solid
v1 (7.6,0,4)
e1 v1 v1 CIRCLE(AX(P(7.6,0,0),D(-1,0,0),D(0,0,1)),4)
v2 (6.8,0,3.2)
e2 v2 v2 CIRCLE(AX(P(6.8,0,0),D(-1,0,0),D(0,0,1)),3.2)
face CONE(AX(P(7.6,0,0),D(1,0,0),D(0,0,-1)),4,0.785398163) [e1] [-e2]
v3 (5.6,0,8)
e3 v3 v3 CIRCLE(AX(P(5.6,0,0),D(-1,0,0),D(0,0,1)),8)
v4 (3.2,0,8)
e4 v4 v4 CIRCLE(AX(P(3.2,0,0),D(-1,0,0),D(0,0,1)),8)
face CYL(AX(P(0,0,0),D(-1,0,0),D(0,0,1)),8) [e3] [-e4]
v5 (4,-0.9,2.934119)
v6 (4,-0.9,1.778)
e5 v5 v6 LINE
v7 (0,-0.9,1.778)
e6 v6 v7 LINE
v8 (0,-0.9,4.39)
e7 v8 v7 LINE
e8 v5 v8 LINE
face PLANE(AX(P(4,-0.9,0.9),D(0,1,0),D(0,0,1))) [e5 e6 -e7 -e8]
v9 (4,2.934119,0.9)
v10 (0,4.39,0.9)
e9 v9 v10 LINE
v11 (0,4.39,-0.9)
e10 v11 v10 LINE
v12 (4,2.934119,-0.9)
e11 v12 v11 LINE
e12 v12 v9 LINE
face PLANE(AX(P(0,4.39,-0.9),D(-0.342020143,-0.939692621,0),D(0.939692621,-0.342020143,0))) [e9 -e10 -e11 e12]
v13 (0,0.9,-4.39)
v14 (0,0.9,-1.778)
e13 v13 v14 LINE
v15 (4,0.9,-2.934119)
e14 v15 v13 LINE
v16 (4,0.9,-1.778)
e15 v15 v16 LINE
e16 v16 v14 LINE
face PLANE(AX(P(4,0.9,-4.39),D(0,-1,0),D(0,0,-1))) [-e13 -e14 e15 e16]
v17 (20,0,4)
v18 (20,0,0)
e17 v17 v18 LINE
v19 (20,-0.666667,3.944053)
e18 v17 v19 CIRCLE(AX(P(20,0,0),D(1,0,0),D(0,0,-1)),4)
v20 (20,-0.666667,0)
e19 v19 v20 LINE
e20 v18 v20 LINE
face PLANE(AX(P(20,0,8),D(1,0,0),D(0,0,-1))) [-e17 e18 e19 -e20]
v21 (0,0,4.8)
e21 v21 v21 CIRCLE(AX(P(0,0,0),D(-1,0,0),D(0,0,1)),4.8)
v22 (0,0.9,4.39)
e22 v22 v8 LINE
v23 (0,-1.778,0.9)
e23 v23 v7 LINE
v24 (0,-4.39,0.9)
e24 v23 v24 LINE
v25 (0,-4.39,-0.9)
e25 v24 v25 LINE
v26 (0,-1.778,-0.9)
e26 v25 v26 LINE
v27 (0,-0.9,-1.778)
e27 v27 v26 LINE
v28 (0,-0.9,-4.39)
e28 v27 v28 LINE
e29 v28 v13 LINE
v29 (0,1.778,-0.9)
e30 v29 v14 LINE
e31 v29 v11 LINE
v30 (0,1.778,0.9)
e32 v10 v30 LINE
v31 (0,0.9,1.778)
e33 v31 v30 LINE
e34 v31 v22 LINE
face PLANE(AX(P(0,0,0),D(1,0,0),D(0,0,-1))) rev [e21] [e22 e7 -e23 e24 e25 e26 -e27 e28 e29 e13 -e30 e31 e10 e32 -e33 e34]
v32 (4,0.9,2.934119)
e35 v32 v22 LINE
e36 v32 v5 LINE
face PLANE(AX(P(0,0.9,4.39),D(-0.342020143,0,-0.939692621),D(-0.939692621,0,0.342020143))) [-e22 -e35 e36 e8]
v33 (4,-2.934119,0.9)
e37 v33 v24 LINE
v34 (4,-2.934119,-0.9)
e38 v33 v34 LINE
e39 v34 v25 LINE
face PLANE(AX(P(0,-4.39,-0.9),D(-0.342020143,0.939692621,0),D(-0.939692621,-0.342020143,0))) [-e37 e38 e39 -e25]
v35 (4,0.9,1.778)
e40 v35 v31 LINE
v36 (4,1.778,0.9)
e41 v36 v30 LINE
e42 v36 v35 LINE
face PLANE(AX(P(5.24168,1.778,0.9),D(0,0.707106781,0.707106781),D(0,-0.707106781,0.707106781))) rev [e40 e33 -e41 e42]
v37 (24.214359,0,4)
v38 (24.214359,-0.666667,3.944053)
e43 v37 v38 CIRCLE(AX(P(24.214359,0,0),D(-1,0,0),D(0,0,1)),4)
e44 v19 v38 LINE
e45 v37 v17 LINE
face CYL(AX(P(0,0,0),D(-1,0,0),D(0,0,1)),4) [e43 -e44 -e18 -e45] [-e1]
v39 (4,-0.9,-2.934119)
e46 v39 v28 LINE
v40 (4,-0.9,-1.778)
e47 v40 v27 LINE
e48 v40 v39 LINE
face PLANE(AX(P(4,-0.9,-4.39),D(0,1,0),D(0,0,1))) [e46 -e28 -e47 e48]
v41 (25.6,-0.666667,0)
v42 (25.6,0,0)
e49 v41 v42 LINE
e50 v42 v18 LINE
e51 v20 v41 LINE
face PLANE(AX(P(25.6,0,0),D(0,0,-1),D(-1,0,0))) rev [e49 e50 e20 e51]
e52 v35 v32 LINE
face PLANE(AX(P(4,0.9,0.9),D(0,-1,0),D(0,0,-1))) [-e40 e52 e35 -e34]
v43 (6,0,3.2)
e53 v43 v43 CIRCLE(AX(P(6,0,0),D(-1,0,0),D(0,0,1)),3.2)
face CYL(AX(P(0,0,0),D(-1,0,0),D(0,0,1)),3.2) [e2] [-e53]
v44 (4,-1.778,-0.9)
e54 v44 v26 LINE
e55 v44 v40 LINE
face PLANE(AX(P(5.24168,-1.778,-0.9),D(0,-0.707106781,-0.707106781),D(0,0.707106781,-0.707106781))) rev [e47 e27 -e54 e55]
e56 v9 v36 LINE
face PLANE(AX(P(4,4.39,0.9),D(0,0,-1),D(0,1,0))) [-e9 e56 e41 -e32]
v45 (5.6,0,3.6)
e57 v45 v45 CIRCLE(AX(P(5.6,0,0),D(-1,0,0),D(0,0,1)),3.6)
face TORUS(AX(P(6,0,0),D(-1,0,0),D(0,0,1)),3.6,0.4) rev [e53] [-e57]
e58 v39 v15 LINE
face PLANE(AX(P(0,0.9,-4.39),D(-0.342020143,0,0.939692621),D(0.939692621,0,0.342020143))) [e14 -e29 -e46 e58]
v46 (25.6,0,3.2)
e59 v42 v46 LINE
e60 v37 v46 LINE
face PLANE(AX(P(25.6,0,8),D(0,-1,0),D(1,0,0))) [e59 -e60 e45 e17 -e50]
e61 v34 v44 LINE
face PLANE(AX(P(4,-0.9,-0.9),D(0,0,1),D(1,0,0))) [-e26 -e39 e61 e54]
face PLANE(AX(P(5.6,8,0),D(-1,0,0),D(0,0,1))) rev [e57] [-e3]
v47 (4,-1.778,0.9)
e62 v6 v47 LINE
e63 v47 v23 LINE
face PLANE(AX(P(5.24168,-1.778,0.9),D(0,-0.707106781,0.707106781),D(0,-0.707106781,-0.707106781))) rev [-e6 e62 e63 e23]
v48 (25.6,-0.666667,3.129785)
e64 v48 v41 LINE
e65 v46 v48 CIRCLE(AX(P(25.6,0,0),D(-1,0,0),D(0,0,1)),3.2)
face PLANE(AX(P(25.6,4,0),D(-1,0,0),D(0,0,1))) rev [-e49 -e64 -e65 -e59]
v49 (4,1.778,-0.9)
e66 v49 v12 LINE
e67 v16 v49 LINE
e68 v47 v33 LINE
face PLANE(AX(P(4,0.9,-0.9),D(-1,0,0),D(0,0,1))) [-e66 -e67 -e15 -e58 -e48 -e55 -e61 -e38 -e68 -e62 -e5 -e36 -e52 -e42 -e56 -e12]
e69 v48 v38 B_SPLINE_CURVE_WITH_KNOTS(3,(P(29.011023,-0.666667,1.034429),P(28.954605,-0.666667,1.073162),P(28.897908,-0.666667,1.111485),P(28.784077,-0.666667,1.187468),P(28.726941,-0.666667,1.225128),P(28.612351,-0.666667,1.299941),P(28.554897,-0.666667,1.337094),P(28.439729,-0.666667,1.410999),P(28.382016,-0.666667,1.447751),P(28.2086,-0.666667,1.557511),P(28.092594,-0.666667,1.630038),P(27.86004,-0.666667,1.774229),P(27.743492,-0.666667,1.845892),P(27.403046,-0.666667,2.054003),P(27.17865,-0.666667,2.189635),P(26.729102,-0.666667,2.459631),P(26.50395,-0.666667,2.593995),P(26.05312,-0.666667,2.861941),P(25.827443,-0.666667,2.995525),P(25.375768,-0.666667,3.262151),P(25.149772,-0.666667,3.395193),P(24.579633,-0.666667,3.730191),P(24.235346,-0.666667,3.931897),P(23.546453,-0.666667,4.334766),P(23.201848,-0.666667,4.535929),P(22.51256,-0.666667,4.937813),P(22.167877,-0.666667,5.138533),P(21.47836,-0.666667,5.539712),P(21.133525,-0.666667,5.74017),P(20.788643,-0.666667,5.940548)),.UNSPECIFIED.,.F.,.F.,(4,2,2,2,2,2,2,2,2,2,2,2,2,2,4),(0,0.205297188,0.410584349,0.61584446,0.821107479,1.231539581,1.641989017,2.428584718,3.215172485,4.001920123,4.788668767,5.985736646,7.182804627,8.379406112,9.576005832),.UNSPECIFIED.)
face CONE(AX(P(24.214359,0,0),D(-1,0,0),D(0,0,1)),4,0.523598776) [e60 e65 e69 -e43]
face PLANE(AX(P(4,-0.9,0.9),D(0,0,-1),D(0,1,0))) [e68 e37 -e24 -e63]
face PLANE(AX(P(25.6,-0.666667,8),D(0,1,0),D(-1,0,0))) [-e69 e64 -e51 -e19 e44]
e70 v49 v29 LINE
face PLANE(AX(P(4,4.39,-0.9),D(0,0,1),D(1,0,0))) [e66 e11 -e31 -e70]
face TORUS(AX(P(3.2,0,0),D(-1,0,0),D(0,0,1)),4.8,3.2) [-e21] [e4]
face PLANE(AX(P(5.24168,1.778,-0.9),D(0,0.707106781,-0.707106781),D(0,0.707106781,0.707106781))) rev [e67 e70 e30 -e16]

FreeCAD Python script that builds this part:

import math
import FreeCAD as App
import Part
import Sketcher

V = App.Vector
Q = App.Units.Quantity


def faces_at(feature, points):
    """Names of the faces that lie closest to the given points."""
    faces = feature.Shape.Faces
    near = lambda p: min(range(len(faces)), key=lambda i: faces[i].distToShape(Part.Vertex(*p))[0])
    return sorted({f"Face{near(p) + 1}" for p in points})


def add_polygon(sketch, points):
    """Adds a closed chain of lines whose ends are joined by coincident constraints."""
    first, n = sketch.GeometryCount, len(points)
    for a, b in zip(points, points[1:] + points[:1]):
        sketch.addGeometry(Part.LineSegment(App.Vector(*a, 0), App.Vector(*b, 0)), False)
    for i in range(n):
        sketch.addConstraint(Sketcher.Constraint("Coincident", first + i, 2, first + (i + 1) % n, 1))

doc = App.newDocument("Part")
params = doc.addObject("Spreadsheet::Sheet", "Params")
for row, (alias, value) in enumerate([
    ("sketch1_radius", "0.4 mm"),
    ("sketch1_radius2", "3.2 mm"),
    ("sketch1_width", "18 mm"),
    ("sketch1_height", "4 mm"),
    ("sketch1_width2", "25.6 mm"),
    ("revolution_angle", "360 deg"),
    ("sketch2_width", "1.8 mm"),
    ("sketch2_width2", "3.49 mm"),
    ("pocket1_length", "4 mm"),
    ("draft_angle", "20 deg"),
    ("pocket2_length", "4 mm"),
    ("sketch4_height", "3.2 mm"),
    ("groove_angle", "360 deg"),
    ("sketch5_width", "5.6 mm"),
], start=1):
    params.set(f"A{row}", alias)
    params.set(f"B{row}", "=" + value)
    params.setAlias(f"B{row}", alias)

body = doc.addObject("PartDesign::Body", "Body")

# Sketch on XY plane
sketch1 = doc.addObject("Sketcher::SketchObject", "Sketch")
body.addObject(sketch1)
sketch1.AttachmentSupport = (doc.XY_Plane, [""])
sketch1.MapMode = "FlatFace"
sketch1.addGeometry(Part.LineSegment(V(0, 4.8, 0), V(0, 0, 0)), False)
sketch1.addGeometry(Part.LineSegment(V(0, 0, 0), V(25.6, 0, 0)), False)
sketch1.addGeometry(Part.LineSegment(V(25.6, 0, 0), V(25.6, 4, 0)), False)
sketch1.addGeometry(Part.LineSegment(V(25.6, 4, 0), V(7.6, 4, 0)), False)
sketch1.addGeometry(Part.LineSegment(V(7.6, 4, 0), V(6.8, 3.2, 0)), False)
sketch1.addGeometry(Part.LineSegment(V(6.8, 3.2, 0), V(6, 3.2, 0)), False)
sketch1.addGeometry(Part.ArcOfCircle(Part.Circle(V(6, 3.6, 0), V(0, 0, 1), 0.4), math.radians(-180), math.radians(-90)), False)
sketch1.addGeometry(Part.LineSegment(V(5.6, 3.6, 0), V(5.6, 8, 0)), False)
sketch1.addGeometry(Part.LineSegment(V(5.6, 8, 0), V(3.2, 8, 0)), False)
sketch1.addGeometry(Part.ArcOfCircle(Part.Circle(V(3.2, 4.8, 0), V(0, 0, 1), 3.2), math.radians(90), math.radians(180)), False)
sketch1.addConstraint(Sketcher.Constraint("Coincident", 0, 2, 1, 1))
sketch1.addConstraint(Sketcher.Constraint("Coincident", 1, 2, 2, 1))
sketch1.addConstraint(Sketcher.Constraint("Coincident", 2, 2, 3, 1))
sketch1.addConstraint(Sketcher.Constraint("Coincident", 3, 2, 4, 1))
sketch1.addConstraint(Sketcher.Constraint("Coincident", 4, 2, 5, 1))
sketch1.addConstraint(Sketcher.Constraint("Tangent", 5, 2, 6, 2))
sketch1.addConstraint(Sketcher.Constraint("Tangent", 6, 1, 7, 1))
sketch1.addConstraint(Sketcher.Constraint("Coincident", 7, 2, 8, 1))
sketch1.addConstraint(Sketcher.Constraint("Tangent", 8, 2, 9, 1))
sketch1.addConstraint(Sketcher.Constraint("Tangent", 9, 2, 0, 1))
sketch1.addConstraint(Sketcher.Constraint("Vertical", 0))
sketch1.addConstraint(Sketcher.Constraint("Horizontal", 1))
sketch1.addConstraint(Sketcher.Constraint("Vertical", 2))
sketch1.addConstraint(Sketcher.Constraint("Horizontal", 3))
sketch1.addConstraint(Sketcher.Constraint("Horizontal", 5))
sketch1.addConstraint(Sketcher.Constraint("Vertical", 7))
sketch1.addConstraint(Sketcher.Constraint("Horizontal", 8))
sketch1.addConstraint(Sketcher.Constraint("Coincident", 0, 2, -1, 1))
sketch1.addConstraint(Sketcher.Constraint("Radius", 6, 0.4))
sketch1.addConstraint(Sketcher.Constraint("Radius", 9, 3.2))
sketch1.addConstraint(Sketcher.Constraint("DistanceX", 3, 2, 3, 1, 18.0))
sketch1.addConstraint(Sketcher.Constraint("DistanceY", 2, 1, 2, 2, 4.0))
sketch1.addConstraint(Sketcher.Constraint("Angle", 4, Q("-135 deg")))
sketch1.addConstraint(Sketcher.Constraint("DistanceX", 1, 1, 1, 2, 25.6))
sketch1.addConstraint(Sketcher.Constraint("DistanceX", 5, 2, 5, 1, 0.8))
sketch1.addConstraint(Sketcher.Constraint("DistanceX", 8, 2, 8, 1, 2.4))
sketch1.addConstraint(Sketcher.Constraint("DistanceY", 0, 2, 0, 1, 4.8))
sketch1.setExpression("Constraints[18]", "Params.sketch1_radius")
sketch1.setExpression("Constraints[19]", "Params.sketch1_radius2")
sketch1.setExpression("Constraints[20]", "Params.sketch1_width")
sketch1.setExpression("Constraints[21]", "Params.sketch1_height")
sketch1.setExpression("Constraints[23]", "Params.sketch1_width2")
revolution = doc.addObject("PartDesign::Revolution", "Revolution")
body.addObject(revolution)
revolution.Profile = sketch1
revolution.ReferenceAxis = (sketch1, ["H_Axis"])
revolution.setExpression("Angle", "Params.revolution_angle")

# Sketch on YZ plane
sketch2 = doc.addObject("Sketcher::SketchObject", "Sketch001")
body.addObject(sketch2)
sketch2.AttachmentSupport = (doc.YZ_Plane, [""])
sketch2.MapMode = "FlatFace"
add_polygon(sketch2, [(4.4, -0.9), (4.4, 0.9), (0.9, 0.9), (0.9, 4.4), (-0.9, 4.4), (-0.9, 0.9), (-4.4, 0.9), (-4.4, -0.9), (-0.9, -0.9), (-0.9, -4.4), (0.9, -4.4), (0.9, -0.9)])  # lines 0-11
sketch2.addConstraint(Sketcher.Constraint("Vertical", 0))
sketch2.addConstraint(Sketcher.Constraint("Horizontal", 1))
sketch2.addConstraint(Sketcher.Constraint("Vertical", 2))
sketch2.addConstraint(Sketcher.Constraint("Horizontal", 3))
sketch2.addConstraint(Sketcher.Constraint("Vertical", 4))
sketch2.addConstraint(Sketcher.Constraint("Horizontal", 5))
sketch2.addConstraint(Sketcher.Constraint("Vertical", 6))
sketch2.addConstraint(Sketcher.Constraint("Horizontal", 7))
sketch2.addConstraint(Sketcher.Constraint("Vertical", 8))
sketch2.addConstraint(Sketcher.Constraint("Horizontal", 9))
sketch2.addConstraint(Sketcher.Constraint("Vertical", 10))
sketch2.addConstraint(Sketcher.Constraint("Horizontal", 11))
sketch2.addConstraint(Sketcher.Constraint("Symmetric", 0, 2, 6, 2, -1, 1))
sketch2.addConstraint(Sketcher.Constraint("Symmetric", 2, 2, 8, 2, -1, 1))
sketch2.addConstraint(Sketcher.Constraint("Symmetric", 4, 2, 10, 2, -1, 1))
sketch2.addConstraint(Sketcher.Constraint("Symmetric", 1, 2, 4, 2, -2))
sketch2.addConstraint(Sketcher.Constraint("Equal", 9, 0))
sketch2.addConstraint(Sketcher.Constraint("Equal", 11, 2))
sketch2.addConstraint(Sketcher.Constraint("DistanceX", 3, 2, 3, 1, 1.8))
sketch2.addConstraint(Sketcher.Constraint("DistanceX", 1, 2, 1, 1, 3.49))
sketch2.setExpression("Constraints[30]", "Params.sketch2_width")
sketch2.setExpression("Constraints[31]", "Params.sketch2_width2")
pocket1 = doc.addObject("PartDesign::Pocket", "Pocket")
body.addObject(pocket1)
pocket1.Profile = sketch2
pocket1.setExpression("Length", "Params.pocket1_length")
pocket1.Reversed = True
doc.recompute()

draft = doc.addObject("PartDesign::Draft", "Draft")
body.addObject(draft)
draft.Base = (pocket1, faces_at(pocket1, [
    (2, 0, -4.39),
    (2, -4.39, 0),
    (2, 0, 4.39),
    (2, 4.39, 0),
]))
draft.NeutralPlane = (doc.YZ_Plane, [""])
draft.setExpression("Angle", "Params.draft_angle")
draft.Reversed = True

# Sketch on YZ plane
sketch3 = doc.addObject("Sketcher::SketchObject", "Sketch002")
body.addObject(sketch3)
sketch3.AttachmentSupport = (doc.YZ_Plane, [""])
sketch3.MapMode = "FlatFace"
add_polygon(sketch3, [(0.9, 1.8), (1.8, 0.9), (0.9, 0.9)])  # lines 0-2
add_polygon(sketch3, [(0.9, -1.8), (0.9, -0.9), (1.8, -0.9)])  # lines 3-5
add_polygon(sketch3, [(-0.9, -1.8), (-1.8, -0.9), (-0.9, -0.9)])  # lines 6-8
add_polygon(sketch3, [(-0.9, 1.8), (-0.9, 0.9), (-1.8, 0.9)])  # lines 9-11
sketch3.addConstraint(Sketcher.Constraint("Horizontal", 1))
sketch3.addConstraint(Sketcher.Constraint("Vertical", 2))
sketch3.addConstraint(Sketcher.Constraint("Vertical", 3))
sketch3.addConstraint(Sketcher.Constraint("Horizontal", 4))
sketch3.addConstraint(Sketcher.Constraint("Horizontal", 7))
sketch3.addConstraint(Sketcher.Constraint("Vertical", 8))
sketch3.addConstraint(Sketcher.Constraint("Vertical", 9))
sketch3.addConstraint(Sketcher.Constraint("Horizontal", 10))
sketch3.addConstraint(Sketcher.Constraint("Symmetric", 0, 2, 6, 2, -1, 1))
sketch3.addConstraint(Sketcher.Constraint("Symmetric", 2, 2, 8, 2, -1, 1))
sketch3.addConstraint(Sketcher.Constraint("Symmetric", 3, 2, 9, 2, -1, 1))
sketch3.addConstraint(Sketcher.Constraint("Symmetric", 4, 2, 6, 2, -2))
sketch3.addConstraint(Sketcher.Constraint("Symmetric", 5, 2, 8, 2, -2))
sketch3.addConstraint(Sketcher.Constraint("Perpendicular", 0, 5))
sketch3.addConstraint(Sketcher.Constraint("Perpendicular", 6, 11))
sketch3.addConstraint(Sketcher.Constraint("Horizontal", 2, 2, 11, 2))
sketch3.addConstraint(Sketcher.Constraint("DistanceY", -1, 1, 0, 2, 0.9))
sketch3.addConstraint(Sketcher.Constraint("DistanceX", -1, 1, 1, 2, 0.9))
sketch3.addConstraint(Sketcher.Constraint("DistanceX", 1, 2, 1, 1, 0.878))
pocket2 = doc.addObject("PartDesign::Pocket", "Pocket001")
body.addObject(pocket2)
pocket2.Profile = sketch3
pocket2.setExpression("Length", "Params.pocket2_length")
pocket2.Reversed = True

# Sketch on XY plane
sketch4 = doc.addObject("Sketcher::SketchObject", "Sketch003")
body.addObject(sketch4)
sketch4.AttachmentSupport = (doc.XY_Plane, [""])
sketch4.MapMode = "FlatFace"
add_polygon(sketch4, [(25.6, 0), (26.1, 0), (26.1, 4.5), (24.2, 4.5), (24.2, 4), (25.6, 3.2)])  # lines 0-5
sketch4.addConstraint(Sketcher.Constraint("Horizontal", 0))
sketch4.addConstraint(Sketcher.Constraint("Vertical", 1))
sketch4.addConstraint(Sketcher.Constraint("Horizontal", 2))
sketch4.addConstraint(Sketcher.Constraint("Vertical", 3))
sketch4.addConstraint(Sketcher.Constraint("Vertical", 5))
sketch4.addConstraint(Sketcher.Constraint("PointOnObject", 0, 2, -1))
sketch4.addConstraint(Sketcher.Constraint("Equal", 0, 3))
sketch4.addConstraint(Sketcher.Constraint("Angle", 4, Q("-30 deg")))
sketch4.addConstraint(Sketcher.Constraint("DistanceY", 5, 2, 5, 1, 3.2))
sketch4.addConstraint(Sketcher.Constraint("DistanceY", -1, 1, 3, 2, 4.0))
sketch4.addConstraint(Sketcher.Constraint("DistanceX", -1, 1, 4, 2, 25.6))
sketch4.addConstraint(Sketcher.Constraint("DistanceX", 0, 1, 0, 2, 0.508))
sketch4.setExpression("Constraints[14]", "Params.sketch4_height")
groove = doc.addObject("PartDesign::Groove", "Groove")
body.addObject(groove)
groove.Profile = sketch4
groove.ReferenceAxis = (sketch4, ["H_Axis"])
groove.setExpression("Angle", "Params.groove_angle")

# Sketch on XY plane
sketch5 = doc.addObject("Sketcher::SketchObject", "Sketch004")
body.addObject(sketch5)
sketch5.AttachmentSupport = (doc.XY_Plane, [""])
sketch5.MapMode = "FlatFace"
add_polygon(sketch5, [(20, 0), (20, -0.7), (25.6, -0.7), (25.6, 0)])  # lines 0-3
sketch5.addConstraint(Sketcher.Constraint("Vertical", 0))
sketch5.addConstraint(Sketcher.Constraint("Horizontal", 1))
sketch5.addConstraint(Sketcher.Constraint("Vertical", 2))
sketch5.addConstraint(Sketcher.Constraint("Horizontal", 3))
sketch5.addConstraint(Sketcher.Constraint("PointOnObject", 2, 2, -1))
sketch5.addConstraint(Sketcher.Constraint("DistanceX", 1, 1, 1, 2, 5.6))
sketch5.addConstraint(Sketcher.Constraint("DistanceX", -1, 1, 0, 2, 20.0))
sketch5.addConstraint(Sketcher.Constraint("DistanceY", 0, 2, 0, 1, 0.666667))
sketch5.setExpression("Constraints[9]", "Params.sketch5_width")
pocket3 = doc.addObject("PartDesign::Pocket", "Pocket002")
body.addObject(pocket3)
pocket3.Profile = sketch5
pocket3.Type = "ThroughAll"
pocket3.Reversed = True

doc.recompute()
